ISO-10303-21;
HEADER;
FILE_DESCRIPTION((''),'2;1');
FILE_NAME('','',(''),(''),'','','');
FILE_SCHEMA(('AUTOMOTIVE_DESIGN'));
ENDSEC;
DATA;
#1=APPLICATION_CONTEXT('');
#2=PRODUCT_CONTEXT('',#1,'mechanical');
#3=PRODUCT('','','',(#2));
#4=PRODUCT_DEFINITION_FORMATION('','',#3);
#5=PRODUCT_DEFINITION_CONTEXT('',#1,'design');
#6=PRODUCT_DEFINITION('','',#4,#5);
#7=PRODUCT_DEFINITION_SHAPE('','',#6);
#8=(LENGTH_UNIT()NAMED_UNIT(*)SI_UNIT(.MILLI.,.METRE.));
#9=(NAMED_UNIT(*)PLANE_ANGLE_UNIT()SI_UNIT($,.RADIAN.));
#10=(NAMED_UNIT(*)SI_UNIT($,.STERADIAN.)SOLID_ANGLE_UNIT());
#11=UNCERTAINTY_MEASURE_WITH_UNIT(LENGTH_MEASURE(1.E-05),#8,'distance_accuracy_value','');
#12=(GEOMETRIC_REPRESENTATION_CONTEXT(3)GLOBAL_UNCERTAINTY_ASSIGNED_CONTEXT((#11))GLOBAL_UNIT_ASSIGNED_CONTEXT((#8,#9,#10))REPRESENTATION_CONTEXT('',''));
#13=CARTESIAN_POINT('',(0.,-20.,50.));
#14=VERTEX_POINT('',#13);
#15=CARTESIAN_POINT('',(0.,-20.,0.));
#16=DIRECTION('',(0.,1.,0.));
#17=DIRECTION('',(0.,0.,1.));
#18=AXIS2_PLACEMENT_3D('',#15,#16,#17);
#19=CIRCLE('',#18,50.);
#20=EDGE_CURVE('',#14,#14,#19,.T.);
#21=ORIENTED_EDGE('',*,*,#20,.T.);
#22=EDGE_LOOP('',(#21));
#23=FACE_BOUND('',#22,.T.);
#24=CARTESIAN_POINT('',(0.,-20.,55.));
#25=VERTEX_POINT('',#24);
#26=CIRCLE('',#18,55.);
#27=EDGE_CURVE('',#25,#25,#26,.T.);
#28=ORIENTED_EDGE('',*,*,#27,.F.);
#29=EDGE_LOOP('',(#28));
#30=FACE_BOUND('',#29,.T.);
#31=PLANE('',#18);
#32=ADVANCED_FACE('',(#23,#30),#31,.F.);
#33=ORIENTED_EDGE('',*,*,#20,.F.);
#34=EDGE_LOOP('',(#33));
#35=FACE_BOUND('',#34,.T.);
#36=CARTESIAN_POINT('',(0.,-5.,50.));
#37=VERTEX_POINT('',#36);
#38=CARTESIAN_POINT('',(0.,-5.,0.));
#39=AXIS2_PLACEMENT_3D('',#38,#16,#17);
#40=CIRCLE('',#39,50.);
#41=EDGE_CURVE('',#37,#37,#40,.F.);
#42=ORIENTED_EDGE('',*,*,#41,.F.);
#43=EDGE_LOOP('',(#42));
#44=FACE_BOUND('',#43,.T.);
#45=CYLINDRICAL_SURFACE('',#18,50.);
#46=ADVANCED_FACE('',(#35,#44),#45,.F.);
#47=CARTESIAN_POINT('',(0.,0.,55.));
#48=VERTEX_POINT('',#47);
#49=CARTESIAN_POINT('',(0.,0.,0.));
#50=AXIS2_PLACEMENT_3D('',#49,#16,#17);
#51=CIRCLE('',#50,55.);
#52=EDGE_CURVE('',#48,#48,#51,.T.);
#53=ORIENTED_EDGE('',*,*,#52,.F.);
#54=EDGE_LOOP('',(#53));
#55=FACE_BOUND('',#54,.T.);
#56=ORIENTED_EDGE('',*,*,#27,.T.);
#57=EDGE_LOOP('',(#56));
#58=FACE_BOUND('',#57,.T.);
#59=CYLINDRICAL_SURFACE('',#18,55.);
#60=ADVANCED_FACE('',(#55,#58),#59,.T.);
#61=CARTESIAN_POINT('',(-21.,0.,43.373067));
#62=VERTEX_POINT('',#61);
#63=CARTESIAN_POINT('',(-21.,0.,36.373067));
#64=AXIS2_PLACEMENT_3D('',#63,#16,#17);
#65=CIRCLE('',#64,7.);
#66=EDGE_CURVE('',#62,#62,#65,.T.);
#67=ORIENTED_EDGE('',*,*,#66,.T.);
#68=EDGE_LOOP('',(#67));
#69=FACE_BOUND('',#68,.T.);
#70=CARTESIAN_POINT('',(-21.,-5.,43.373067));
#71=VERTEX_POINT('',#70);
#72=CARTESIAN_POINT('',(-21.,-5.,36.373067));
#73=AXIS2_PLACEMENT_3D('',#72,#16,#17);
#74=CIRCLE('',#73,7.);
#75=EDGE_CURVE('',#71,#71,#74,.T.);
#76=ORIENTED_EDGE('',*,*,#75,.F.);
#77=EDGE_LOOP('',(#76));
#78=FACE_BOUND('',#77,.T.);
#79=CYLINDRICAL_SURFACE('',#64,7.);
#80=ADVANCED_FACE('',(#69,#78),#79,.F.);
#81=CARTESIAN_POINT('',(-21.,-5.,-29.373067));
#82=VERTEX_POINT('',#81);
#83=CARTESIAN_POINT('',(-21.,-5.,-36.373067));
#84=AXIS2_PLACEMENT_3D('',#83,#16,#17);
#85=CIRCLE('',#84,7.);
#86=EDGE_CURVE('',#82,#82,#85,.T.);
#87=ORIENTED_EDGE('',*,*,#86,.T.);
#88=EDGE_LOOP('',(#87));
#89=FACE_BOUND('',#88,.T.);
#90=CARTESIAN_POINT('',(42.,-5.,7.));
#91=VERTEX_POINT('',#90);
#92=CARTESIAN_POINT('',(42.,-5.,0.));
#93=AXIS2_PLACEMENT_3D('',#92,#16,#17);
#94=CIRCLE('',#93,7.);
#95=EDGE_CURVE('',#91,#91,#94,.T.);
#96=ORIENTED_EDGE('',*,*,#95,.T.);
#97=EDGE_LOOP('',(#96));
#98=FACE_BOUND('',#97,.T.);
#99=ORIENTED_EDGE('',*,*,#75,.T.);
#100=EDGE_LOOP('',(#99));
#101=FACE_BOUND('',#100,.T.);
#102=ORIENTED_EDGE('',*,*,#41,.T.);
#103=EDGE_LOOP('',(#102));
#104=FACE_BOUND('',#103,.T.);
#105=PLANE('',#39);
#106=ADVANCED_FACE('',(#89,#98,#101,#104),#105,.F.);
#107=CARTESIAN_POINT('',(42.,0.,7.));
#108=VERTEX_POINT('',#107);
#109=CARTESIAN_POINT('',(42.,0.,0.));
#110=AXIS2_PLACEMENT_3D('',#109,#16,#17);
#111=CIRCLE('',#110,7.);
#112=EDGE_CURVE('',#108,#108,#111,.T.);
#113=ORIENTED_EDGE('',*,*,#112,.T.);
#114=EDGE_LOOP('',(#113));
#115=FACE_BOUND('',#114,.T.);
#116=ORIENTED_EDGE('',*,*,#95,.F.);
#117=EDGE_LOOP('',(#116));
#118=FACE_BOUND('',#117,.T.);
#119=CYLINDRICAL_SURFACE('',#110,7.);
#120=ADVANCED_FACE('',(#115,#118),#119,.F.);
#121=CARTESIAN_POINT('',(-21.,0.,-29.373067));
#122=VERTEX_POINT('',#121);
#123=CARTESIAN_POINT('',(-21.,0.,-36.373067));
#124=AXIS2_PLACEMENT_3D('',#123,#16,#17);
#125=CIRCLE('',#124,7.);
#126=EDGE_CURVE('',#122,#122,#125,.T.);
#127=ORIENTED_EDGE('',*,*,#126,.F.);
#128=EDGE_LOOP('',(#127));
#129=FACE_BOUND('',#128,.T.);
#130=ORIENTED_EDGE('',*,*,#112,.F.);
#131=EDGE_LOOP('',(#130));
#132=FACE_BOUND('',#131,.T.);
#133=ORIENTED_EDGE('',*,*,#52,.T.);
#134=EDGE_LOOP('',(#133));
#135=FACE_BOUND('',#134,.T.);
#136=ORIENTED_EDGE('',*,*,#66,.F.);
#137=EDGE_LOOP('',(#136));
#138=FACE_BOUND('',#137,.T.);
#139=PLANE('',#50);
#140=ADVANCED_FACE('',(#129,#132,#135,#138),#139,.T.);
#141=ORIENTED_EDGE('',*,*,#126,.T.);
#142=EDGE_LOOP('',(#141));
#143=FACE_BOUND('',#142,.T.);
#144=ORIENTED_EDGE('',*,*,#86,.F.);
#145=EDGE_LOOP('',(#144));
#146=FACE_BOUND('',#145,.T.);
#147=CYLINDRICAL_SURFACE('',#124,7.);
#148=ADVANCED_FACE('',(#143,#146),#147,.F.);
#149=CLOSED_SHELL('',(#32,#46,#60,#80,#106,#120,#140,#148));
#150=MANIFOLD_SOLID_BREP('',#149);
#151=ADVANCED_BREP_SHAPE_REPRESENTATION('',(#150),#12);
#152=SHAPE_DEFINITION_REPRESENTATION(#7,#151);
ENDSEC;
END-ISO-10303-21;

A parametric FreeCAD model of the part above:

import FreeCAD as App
import Part
import Sketcher
Q = App.Units.Quantity

doc = App.newDocument("Part")
body = doc.addObject("PartDesign::Body", "Body")

# Sketch on XZ plane
sketch1 = doc.addObject("Sketcher::SketchObject", "Sketch")
body.addObject(sketch1)
sketch1.AttachmentSupport = (doc.XZ_Plane, [""])
sketch1.MapMode = "FlatFace"
sketch1.addGeometry(Part.Circle(App.Vector(0, 0, 0), App.Vector(0, 0, 1), 55), False)
sketch1.addGeometry(Part.Circle(App.Vector(0, 0, 0), App.Vector(0, 0, 1), 50), False)
sketch1.addConstraint(Sketcher.Constraint("Coincident", 0, 3, -1, 1))
sketch1.addConstraint(Sketcher.Constraint("Coincident", 1, 3, -1, 1))
sketch1.addConstraint(Sketcher.Constraint("Diameter", 0, Q("110 mm")))
sketch1.addConstraint(Sketcher.Constraint("Diameter", 1, Q("100 mm")))
pad1 = doc.addObject("PartDesign::Pad", "Pad")
body.addObject(pad1)
pad1.Profile = sketch1
pad1.Length = 20

# Sketch on XZ plane
sketch2 = doc.addObject("Sketcher::SketchObject", "Sketch001")
body.addObject(sketch2)
sketch2.AttachmentSupport = (doc.XZ_Plane, [""])
sketch2.MapMode = "FlatFace"
sketch2.addGeometry(Part.Circle(App.Vector(0, 0, 0), App.Vector(0, 0, 1), 55), False)
sketch2.addConstraint(Sketcher.Constraint("Coincident", 0, 3, -1, 1))
sketch2.addConstraint(Sketcher.Constraint("Diameter", 0, Q("110 mm")))
pad2 = doc.addObject("PartDesign::Pad", "Pad001")
body.addObject(pad2)
pad2.Profile = sketch2
pad2.Length = 5

# Sketch on XZ plane
sketch3 = doc.addObject("Sketcher::SketchObject", "Sketch002")
body.addObject(sketch3)
sketch3.AttachmentSupport = (doc.XZ_Plane, [""])
sketch3.MapMode = "FlatFace"
sketch3.addGeometry(Part.Circle(App.Vector(42, 0, 0), App.Vector(0, 0, 1), 7), False)
sketch3.addConstraint(Sketcher.Constraint("PointOnObject", 0, 3, -1))
sketch3.addConstraint(Sketcher.Constraint("Diameter", 0, Q("14 mm")))
sketch3.addConstraint(Sketcher.Constraint("DistanceX", -1, 1, 0, 3, Q("42 mm")))
doc.recompute()
hole = doc.addObject("PartDesign::Hole", "Hole")
body.addObject(hole)
hole.Profile = sketch3
hole.ThreadType = "None"
hole.Diameter = 14
hole.DepthType = "ThroughAll"
hole.Reversed = True
doc.recompute()

polarpattern = doc.addObject("PartDesign::PolarPattern", "PolarPattern")
body.addObject(polarpattern)
polarpattern.Originals = [hole]
polarpattern.Axis = (doc.Y_Axis, [""])
polarpattern.Angle = 360
polarpattern.Occurrences = 3
body.Tip = polarpattern

doc.recompute()
